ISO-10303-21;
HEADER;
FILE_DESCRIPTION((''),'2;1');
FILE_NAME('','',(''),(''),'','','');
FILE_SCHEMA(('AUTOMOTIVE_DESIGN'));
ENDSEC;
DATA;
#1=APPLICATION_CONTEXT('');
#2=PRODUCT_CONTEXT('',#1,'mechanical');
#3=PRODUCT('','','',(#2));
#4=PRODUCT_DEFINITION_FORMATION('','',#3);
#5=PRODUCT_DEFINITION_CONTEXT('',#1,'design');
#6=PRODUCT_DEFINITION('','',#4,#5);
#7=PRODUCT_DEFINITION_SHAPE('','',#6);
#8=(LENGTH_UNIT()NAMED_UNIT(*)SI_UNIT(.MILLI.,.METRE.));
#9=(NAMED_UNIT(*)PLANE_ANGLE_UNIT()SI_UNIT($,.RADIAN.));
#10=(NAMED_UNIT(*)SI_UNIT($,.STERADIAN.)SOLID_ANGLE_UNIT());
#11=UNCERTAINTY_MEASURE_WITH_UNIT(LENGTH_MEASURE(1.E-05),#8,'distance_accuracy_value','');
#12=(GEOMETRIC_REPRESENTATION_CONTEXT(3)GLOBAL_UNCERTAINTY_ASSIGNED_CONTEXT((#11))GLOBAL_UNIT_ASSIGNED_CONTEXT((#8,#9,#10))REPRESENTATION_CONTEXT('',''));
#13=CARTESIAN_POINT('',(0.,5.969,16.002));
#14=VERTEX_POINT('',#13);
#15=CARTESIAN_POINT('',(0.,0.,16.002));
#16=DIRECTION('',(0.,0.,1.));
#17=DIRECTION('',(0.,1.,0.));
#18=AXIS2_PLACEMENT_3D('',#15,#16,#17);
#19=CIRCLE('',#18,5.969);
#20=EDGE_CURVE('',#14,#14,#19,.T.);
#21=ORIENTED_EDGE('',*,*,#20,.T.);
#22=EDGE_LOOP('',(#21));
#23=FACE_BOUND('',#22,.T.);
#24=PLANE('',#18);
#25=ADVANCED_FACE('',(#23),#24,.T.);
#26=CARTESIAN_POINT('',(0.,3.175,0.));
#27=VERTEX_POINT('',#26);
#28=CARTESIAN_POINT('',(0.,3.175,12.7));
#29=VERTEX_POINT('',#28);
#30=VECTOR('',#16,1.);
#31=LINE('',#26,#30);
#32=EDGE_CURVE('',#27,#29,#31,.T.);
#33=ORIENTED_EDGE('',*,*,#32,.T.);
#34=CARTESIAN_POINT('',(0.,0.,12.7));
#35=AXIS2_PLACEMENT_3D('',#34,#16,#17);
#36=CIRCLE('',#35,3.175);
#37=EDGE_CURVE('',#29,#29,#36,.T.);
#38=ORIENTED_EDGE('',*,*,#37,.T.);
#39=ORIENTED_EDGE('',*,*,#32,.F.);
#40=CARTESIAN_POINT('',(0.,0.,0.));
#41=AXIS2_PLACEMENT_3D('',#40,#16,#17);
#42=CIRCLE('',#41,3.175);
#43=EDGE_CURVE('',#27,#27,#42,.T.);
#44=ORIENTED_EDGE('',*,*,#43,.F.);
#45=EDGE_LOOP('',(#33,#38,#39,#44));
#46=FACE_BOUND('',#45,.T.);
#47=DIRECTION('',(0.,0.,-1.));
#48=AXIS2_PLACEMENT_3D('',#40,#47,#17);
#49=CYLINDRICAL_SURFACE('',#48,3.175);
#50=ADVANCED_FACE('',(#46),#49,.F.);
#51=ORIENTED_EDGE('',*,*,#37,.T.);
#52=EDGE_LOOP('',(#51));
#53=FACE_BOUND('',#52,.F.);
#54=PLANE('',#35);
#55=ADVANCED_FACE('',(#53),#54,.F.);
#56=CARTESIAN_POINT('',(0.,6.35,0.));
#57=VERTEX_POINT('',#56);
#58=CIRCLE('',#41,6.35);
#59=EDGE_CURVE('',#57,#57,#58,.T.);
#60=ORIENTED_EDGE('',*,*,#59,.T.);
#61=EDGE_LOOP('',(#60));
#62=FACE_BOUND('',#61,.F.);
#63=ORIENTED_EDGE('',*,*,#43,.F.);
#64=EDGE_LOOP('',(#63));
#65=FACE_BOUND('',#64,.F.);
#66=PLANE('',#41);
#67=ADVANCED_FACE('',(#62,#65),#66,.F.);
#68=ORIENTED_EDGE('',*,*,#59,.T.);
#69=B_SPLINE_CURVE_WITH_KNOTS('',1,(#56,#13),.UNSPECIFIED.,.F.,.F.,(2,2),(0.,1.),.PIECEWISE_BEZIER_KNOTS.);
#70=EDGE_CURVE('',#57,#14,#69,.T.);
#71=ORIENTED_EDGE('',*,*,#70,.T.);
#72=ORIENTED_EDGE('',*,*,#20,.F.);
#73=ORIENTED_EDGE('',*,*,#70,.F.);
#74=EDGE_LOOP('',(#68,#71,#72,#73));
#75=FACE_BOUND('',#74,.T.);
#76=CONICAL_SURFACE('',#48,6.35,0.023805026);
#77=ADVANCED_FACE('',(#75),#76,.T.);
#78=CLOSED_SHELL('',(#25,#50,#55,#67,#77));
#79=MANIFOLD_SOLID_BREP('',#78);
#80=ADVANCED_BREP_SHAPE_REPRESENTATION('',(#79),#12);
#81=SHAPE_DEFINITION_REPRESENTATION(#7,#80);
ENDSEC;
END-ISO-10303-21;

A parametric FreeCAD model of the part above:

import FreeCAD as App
import Part
import Sketcher
Q = App.Units.Quantity

doc = App.newDocument("Part")
body = doc.addObject("PartDesign::Body", "Body")

# Sketch on XY plane
sketch1 = body.newObject("Sketcher::SketchObject", "Sketch")
sketch1.AttachmentSupport = (doc.getObject("XY_Plane"), [""])
sketch1.MapMode = "FlatFace"
sketch1.addGeometry(Part.Circle(App.Vector(0, 0, 0), App.Vector(0, 0, 1), 6), False)
sketch1.addConstraint([
    Sketcher.Constraint("Coincident", 0, 3, -1, 1),
    Sketcher.Constraint("Diameter", 0, Q("0.5 in")),
])

# Sketch on XY plane
sketch2 = body.newObject("Sketcher::SketchObject", "Sketch001")
sketch2.AttachmentSupport = (doc.getObject("XY_Plane"), [""])
sketch2.MapMode = "FlatFace"
sketch2.AttachmentOffset = App.Placement(App.Vector(0, 0, 0.63 * 25.4), App.Rotation())
sketch2.addGeometry(Part.Circle(App.Vector(0, 0, 0), App.Vector(0, 0, 1), 6), False)
sketch2.addConstraint([
    Sketcher.Constraint("Coincident", 0, 3, -1, 1),
    Sketcher.Constraint("Diameter", 0, Q("0.47 in")),
])

additiveloft = body.newObject("PartDesign::AdditiveLoft", "AdditiveLoft")
additiveloft.Profile = sketch1
additiveloft.Sections = [sketch2]

# Sketch on XY plane
sketch3 = body.newObject("Sketcher::SketchObject", "Sketch002")
sketch3.AttachmentSupport = (doc.getObject("XY_Plane"), [""])
sketch3.MapMode = "FlatFace"
sketch3.addGeometry(Part.Circle(App.Vector(0, 0, 0), App.Vector(0, 0, 1), 3.2), False)
sketch3.addConstraint([
    Sketcher.Constraint("Coincident", 0, 3, -1, 1),
    Sketcher.Constraint("Diameter", 0, Q("0.25 in")),
])
pocket1 = body.newObject("PartDesign::Pocket", "Pocket")
pocket1.Profile = sketch3
pocket1.Length = Q("0.5 in")
pocket1.Reversed = True

doc.recompute()
